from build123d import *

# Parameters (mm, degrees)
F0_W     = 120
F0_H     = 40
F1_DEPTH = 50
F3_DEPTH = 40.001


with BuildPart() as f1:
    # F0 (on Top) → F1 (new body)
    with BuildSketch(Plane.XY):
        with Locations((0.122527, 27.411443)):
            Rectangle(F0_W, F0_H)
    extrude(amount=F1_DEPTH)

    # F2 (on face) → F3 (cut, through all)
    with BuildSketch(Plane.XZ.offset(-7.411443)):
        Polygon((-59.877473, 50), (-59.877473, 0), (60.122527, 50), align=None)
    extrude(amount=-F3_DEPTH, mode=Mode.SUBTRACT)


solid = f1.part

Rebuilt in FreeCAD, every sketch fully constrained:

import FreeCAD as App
import Part
import Sketcher


def add_polygon(sketch, points):
    """Adds a closed chain of lines whose ends are joined by coincident constraints."""
    first, n = sketch.GeometryCount, len(points)
    for a, b in zip(points, points[1:] + points[:1]):
        sketch.addGeometry(Part.LineSegment(App.Vector(*a, 0), App.Vector(*b, 0)), False)
    for i in range(n):
        sketch.addConstraint(Sketcher.Constraint("Coincident", first + i, 2, first + (i + 1) % n, 1))

doc = App.newDocument("Part")
body = doc.addObject("PartDesign::Body", "Body")

# Sketch on XY plane
sketch1 = doc.addObject("Sketcher::SketchObject", "Sketch")
body.addObject(sketch1)
sketch1.AttachmentSupport = (doc.XY_Plane, [""])
sketch1.MapMode = "FlatFace"
add_polygon(sketch1, [(-59.877473, 47.411443), (-59.877473, 7.411443), (60.122527, 7.411443), (60.122527, 47.411443)])  # lines 0-3
sketch1.addConstraint(Sketcher.Constraint("Vertical", 0))
sketch1.addConstraint(Sketcher.Constraint("Horizontal", 1))
sketch1.addConstraint(Sketcher.Constraint("Vertical", 2))
sketch1.addConstraint(Sketcher.Constraint("Horizontal", 3))
sketch1.addConstraint(Sketcher.Constraint("DistanceX", 1, 1, 1, 2, 120.0))
sketch1.addConstraint(Sketcher.Constraint("DistanceY", 0, 2, 0, 1, 40.0))
sketch1.addConstraint(Sketcher.Constraint("DistanceX", 0, 2, -1, 1, 59.877473))
sketch1.addConstraint(Sketcher.Constraint("DistanceY", -1, 1, 0, 2, 7.411443))
pad1 = doc.addObject("PartDesign::Pad", "Pad")
body.addObject(pad1)
pad1.Profile = sketch1
pad1.Length = 50

# Sketch on XZ plane
sketch2 = doc.addObject("Sketcher::SketchObject", "Sketch001")
body.addObject(sketch2)
sketch2.AttachmentSupport = (doc.XZ_Plane, [""])
sketch2.MapMode = "FlatFace"
sketch2.AttachmentOffset = App.Placement(App.Vector(0, 0, -7.411443), App.Rotation())
add_polygon(sketch2, [(-59.877473, 50), (-59.877473, 0), (60.122527, 50)])  # lines 0-2
sketch2.addConstraint(Sketcher.Constraint("Vertical", 0))
sketch2.addConstraint(Sketcher.Constraint("Horizontal", 2))
sketch2.addConstraint(Sketcher.Constraint("PointOnObject", 0, 2, -1))
sketch2.addConstraint(Sketcher.Constraint("DistanceX", 2, 2, 2, 1, 120.0))
sketch2.addConstraint(Sketcher.Constraint("DistanceY", 0, 2, 0, 1, 50.0))
sketch2.addConstraint(Sketcher.Constraint("DistanceX", 0, 2, -1, 1, 59.877473))
pocket1 = doc.addObject("PartDesign::Pocket", "Pocket")
body.addObject(pocket1)
pocket1.Profile = sketch2
pocket1.Type = "ThroughAll"

doc.recompute()
